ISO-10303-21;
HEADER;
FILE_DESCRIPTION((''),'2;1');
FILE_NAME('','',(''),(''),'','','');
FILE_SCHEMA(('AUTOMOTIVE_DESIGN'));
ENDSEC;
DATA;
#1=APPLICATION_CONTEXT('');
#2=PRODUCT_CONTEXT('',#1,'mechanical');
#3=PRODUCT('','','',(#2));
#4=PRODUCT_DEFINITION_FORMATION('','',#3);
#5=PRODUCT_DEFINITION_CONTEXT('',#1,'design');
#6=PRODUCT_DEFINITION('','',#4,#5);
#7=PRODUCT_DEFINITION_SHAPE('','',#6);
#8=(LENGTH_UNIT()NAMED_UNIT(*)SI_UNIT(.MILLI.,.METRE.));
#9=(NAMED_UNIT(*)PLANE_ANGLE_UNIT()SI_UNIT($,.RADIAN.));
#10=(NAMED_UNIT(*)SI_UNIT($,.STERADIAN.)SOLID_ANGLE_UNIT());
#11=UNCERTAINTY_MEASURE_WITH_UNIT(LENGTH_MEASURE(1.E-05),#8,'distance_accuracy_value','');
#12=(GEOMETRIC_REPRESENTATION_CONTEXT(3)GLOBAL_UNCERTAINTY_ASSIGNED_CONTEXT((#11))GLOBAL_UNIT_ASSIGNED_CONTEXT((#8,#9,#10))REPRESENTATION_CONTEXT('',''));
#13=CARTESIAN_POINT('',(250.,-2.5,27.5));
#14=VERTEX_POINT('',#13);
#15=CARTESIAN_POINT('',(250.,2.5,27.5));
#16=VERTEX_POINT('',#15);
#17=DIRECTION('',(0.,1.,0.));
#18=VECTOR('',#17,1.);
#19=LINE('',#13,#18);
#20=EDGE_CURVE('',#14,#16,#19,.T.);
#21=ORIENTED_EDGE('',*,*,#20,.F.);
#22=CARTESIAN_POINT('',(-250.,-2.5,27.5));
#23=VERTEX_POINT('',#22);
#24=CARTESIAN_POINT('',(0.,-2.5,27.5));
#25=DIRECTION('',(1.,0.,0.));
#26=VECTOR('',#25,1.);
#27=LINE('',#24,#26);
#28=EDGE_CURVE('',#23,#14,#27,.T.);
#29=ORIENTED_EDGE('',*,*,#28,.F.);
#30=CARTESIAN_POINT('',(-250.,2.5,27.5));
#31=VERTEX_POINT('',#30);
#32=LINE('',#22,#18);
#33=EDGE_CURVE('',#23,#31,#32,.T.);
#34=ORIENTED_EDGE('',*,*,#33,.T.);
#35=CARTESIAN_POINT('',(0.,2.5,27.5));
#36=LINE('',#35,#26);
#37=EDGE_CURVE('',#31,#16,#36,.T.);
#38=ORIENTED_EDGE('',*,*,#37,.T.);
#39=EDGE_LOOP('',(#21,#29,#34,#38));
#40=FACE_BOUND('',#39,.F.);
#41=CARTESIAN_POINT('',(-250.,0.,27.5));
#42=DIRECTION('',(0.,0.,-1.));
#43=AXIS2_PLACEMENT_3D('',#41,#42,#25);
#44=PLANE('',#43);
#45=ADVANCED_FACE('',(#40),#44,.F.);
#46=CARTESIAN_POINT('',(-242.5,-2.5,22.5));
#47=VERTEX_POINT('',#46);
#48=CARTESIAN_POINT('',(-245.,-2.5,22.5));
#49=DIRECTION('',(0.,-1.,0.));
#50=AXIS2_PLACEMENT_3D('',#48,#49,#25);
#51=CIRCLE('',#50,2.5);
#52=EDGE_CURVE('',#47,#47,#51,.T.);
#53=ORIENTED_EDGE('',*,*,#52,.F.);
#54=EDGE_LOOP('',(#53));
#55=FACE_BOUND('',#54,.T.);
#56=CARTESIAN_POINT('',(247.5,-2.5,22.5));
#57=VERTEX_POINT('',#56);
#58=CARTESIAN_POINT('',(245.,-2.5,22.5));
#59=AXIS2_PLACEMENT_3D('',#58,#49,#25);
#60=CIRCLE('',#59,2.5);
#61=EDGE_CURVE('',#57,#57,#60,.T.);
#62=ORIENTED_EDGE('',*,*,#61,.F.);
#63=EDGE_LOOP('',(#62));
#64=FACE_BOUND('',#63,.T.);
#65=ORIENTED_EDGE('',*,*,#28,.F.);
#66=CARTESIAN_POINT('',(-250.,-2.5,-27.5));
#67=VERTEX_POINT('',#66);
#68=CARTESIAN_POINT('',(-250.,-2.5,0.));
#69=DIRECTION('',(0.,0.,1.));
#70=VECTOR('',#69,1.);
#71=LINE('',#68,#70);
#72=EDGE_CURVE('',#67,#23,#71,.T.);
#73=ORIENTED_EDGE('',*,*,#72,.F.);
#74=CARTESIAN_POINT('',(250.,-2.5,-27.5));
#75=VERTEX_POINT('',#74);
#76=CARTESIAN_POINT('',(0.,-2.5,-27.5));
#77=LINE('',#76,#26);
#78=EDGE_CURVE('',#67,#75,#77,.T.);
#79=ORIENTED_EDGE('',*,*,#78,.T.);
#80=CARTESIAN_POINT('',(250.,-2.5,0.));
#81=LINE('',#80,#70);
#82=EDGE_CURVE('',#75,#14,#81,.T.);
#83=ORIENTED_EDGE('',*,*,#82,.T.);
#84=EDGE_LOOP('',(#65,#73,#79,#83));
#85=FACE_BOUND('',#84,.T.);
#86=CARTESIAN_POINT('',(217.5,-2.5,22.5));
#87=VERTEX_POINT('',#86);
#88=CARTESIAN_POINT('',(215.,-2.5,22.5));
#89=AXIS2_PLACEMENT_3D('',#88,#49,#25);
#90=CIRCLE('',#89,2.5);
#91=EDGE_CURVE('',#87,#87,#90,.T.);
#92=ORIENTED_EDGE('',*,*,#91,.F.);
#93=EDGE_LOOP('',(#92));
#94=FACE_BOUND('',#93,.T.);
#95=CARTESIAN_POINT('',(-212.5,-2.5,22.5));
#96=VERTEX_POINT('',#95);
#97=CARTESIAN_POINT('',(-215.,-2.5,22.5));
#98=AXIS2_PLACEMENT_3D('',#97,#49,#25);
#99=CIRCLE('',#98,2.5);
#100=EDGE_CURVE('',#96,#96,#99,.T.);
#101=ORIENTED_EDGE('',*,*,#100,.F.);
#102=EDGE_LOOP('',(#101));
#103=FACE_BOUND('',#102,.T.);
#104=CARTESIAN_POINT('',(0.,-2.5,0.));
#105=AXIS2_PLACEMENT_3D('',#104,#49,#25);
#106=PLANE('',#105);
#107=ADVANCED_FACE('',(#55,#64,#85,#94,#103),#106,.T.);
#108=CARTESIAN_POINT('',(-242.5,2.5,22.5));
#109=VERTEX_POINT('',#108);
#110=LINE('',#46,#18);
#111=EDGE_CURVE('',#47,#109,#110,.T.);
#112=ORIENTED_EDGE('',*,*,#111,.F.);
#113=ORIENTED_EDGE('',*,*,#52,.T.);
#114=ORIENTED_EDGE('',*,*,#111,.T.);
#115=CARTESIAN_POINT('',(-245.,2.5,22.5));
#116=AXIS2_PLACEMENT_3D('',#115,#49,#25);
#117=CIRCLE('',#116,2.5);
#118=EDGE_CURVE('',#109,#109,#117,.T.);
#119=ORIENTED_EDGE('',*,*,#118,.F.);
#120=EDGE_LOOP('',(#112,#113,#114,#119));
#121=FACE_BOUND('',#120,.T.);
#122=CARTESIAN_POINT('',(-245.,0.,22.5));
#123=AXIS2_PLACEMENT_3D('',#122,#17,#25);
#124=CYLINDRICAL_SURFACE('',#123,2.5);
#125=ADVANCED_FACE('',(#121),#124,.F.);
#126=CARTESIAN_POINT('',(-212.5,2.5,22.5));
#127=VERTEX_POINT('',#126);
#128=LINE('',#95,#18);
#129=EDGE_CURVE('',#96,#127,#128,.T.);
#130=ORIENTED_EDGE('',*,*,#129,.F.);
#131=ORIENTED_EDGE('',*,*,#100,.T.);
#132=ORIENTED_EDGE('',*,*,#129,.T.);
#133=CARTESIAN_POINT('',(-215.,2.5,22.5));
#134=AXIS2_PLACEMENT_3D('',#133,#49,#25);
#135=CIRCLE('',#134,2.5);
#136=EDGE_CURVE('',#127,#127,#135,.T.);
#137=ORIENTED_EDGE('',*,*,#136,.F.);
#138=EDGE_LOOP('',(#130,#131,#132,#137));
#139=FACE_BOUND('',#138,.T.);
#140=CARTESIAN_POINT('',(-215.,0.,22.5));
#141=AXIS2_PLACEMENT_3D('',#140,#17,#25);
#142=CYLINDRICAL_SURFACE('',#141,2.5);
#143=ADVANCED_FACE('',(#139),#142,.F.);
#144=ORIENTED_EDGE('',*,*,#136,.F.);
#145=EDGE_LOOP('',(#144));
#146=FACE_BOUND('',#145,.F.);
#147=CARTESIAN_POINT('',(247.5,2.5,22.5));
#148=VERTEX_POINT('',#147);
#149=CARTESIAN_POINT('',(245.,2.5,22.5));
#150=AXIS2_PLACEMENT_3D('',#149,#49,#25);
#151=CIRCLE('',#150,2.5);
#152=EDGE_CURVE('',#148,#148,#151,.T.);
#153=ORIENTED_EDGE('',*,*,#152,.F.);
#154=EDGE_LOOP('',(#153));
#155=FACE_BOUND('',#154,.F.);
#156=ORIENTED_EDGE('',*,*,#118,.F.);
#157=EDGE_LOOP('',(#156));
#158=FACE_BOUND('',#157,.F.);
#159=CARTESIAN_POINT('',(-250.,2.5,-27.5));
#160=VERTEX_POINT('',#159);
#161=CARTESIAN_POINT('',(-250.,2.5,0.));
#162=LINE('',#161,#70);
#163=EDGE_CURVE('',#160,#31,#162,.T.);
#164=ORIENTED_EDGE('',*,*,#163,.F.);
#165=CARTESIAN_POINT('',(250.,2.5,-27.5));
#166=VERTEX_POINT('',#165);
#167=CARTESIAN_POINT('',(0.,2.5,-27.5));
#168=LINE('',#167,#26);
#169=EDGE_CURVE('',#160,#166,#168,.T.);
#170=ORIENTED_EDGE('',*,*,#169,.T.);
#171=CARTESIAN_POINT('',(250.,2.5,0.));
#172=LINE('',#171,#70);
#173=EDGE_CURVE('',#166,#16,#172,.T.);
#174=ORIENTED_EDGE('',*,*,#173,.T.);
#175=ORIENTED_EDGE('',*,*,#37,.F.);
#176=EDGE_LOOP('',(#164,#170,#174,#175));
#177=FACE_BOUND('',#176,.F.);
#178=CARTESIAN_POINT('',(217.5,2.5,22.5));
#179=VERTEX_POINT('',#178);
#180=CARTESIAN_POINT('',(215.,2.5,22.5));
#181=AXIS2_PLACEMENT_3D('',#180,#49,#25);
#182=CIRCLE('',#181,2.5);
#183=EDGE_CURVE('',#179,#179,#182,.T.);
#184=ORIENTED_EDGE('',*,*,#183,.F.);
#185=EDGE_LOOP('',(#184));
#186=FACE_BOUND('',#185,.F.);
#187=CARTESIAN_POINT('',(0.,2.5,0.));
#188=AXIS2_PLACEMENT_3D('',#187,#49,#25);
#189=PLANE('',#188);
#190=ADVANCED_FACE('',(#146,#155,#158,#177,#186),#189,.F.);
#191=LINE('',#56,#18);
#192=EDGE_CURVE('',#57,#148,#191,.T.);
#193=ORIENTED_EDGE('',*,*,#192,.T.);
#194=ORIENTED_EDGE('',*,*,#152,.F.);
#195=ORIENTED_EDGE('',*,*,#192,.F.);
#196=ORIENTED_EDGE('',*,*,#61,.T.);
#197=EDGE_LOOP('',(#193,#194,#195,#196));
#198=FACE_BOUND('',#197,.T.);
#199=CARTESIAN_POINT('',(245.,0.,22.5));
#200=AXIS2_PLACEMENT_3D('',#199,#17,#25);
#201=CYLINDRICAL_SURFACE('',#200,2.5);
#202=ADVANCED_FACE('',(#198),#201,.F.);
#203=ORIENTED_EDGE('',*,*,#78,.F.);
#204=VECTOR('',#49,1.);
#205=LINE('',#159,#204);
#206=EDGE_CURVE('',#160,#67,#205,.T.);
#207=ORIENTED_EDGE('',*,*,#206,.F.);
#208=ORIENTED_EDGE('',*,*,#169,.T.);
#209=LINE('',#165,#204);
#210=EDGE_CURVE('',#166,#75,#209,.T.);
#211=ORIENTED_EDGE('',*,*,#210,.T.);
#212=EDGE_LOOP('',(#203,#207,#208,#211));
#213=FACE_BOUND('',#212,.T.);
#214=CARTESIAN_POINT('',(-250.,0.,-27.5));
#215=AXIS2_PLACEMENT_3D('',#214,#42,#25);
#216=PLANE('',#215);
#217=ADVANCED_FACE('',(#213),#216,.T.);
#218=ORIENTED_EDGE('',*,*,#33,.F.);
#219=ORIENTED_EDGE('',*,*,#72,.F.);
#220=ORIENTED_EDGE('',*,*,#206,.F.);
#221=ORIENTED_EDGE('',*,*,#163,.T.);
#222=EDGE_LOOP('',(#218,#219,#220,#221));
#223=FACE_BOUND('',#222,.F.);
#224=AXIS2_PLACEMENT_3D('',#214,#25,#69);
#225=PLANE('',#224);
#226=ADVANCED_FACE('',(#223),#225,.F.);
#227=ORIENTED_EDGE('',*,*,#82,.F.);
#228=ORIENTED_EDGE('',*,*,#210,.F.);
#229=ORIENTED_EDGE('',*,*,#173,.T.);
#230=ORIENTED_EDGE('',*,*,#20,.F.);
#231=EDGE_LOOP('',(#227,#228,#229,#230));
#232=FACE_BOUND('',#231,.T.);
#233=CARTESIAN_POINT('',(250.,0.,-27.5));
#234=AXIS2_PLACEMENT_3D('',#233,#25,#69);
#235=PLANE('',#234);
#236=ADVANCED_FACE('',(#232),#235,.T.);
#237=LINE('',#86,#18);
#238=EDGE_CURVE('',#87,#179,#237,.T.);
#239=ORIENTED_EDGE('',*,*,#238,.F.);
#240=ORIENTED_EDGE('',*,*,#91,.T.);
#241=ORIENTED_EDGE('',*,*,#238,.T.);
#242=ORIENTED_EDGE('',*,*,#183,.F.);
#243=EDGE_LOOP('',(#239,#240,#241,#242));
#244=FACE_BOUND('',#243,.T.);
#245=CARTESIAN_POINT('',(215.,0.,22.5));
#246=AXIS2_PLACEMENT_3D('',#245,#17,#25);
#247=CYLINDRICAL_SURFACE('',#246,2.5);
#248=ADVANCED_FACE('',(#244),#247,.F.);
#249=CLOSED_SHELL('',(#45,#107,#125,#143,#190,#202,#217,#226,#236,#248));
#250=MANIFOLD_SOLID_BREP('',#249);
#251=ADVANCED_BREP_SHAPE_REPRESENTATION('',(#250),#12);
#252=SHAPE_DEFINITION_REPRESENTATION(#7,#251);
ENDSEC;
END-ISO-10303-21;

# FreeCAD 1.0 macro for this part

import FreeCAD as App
import Part
import Sketcher

V = App.Vector
Q = App.Units.Quantity


def add_polygon(sketch, points):
    """Adds a closed chain of lines whose ends are joined by coincident constraints."""
    first, n = sketch.GeometryCount, len(points)
    for a, b in zip(points, points[1:] + points[:1]):
        sketch.addGeometry(Part.LineSegment(App.Vector(*a, 0), App.Vector(*b, 0)), False)
    for i in range(n):
        sketch.addConstraint(Sketcher.Constraint("Coincident", first + i, 2, first + (i + 1) % n, 1))

doc = App.newDocument("Part")
body = doc.addObject("PartDesign::Body", "Body")

sketch1 = body.newObject("Sketcher::SketchObject", "Sketch")
sketch1.AttachmentSupport = (doc.getObject("XZ_Plane"), [""])
sketch1.MapMode = "FlatFace"
add_polygon(sketch1, [(-250, 27.5), (-250, -27.5), (250, -27.5), (250, 27.5)])
sketch1.addGeometry(Part.Circle(V(-245, 22.5, 0), V(0, 0, 1), 2.5), False)
sketch1.addGeometry(Part.Circle(V(-215, 22.5, 0), V(0, 0, 1), 2.5), False)
sketch1.addGeometry(Part.Circle(V(215, 22.5, 0), V(0, 0, 1), 2.5), False)
sketch1.addGeometry(Part.Circle(V(245, 22.5, 0), V(0, 0, 1), 2.5), False)
sketch1.addConstraint(Sketcher.Constraint("Vertical", 0))
sketch1.addConstraint(Sketcher.Constraint("Horizontal", 1))
sketch1.addConstraint(Sketcher.Constraint("Vertical", 2))
sketch1.addConstraint(Sketcher.Constraint("Horizontal", 3))
sketch1.addConstraint(Sketcher.Constraint("Equal", 4, 5))
sketch1.addConstraint(Sketcher.Constraint("Equal", 5, 6))
sketch1.addConstraint(Sketcher.Constraint("Equal", 6, 7))
sketch1.addConstraint(Sketcher.Constraint("Symmetric", 0, 2, 2, 2, -1, 1))
sketch1.addConstraint(Sketcher.Constraint("Symmetric", 5, 3, 6, 3, -2))
sketch1.addConstraint(Sketcher.Constraint("Symmetric", 4, 3, 7, 3, -2))
sketch1.addConstraint(Sketcher.Constraint("Horizontal", 4, 3, 5, 3))
sketch1.addConstraint(Sketcher.Constraint("Diameter", 4, Q("5 mm")))
sketch1.addConstraint(Sketcher.Constraint("DistanceX", 1, 1, 1, 2, Q("500 mm")))
sketch1.addConstraint(Sketcher.Constraint("DistanceY", 0, 2, 0, 1, Q("55 mm")))
sketch1.addConstraint(Sketcher.Constraint("DistanceX", 4, 3, -1, 1, Q("245 mm")))
sketch1.addConstraint(Sketcher.Constraint("DistanceX", 5, 3, -1, 1, Q("215 mm")))
sketch1.addConstraint(Sketcher.Constraint("DistanceY", 0, 2, 4, 3, Q("50 mm")))
pad1 = body.newObject("PartDesign::Pad", "Pad")
pad1.Profile = sketch1
pad1.Length = 5
pad1.Midplane = True

doc.recompute()
